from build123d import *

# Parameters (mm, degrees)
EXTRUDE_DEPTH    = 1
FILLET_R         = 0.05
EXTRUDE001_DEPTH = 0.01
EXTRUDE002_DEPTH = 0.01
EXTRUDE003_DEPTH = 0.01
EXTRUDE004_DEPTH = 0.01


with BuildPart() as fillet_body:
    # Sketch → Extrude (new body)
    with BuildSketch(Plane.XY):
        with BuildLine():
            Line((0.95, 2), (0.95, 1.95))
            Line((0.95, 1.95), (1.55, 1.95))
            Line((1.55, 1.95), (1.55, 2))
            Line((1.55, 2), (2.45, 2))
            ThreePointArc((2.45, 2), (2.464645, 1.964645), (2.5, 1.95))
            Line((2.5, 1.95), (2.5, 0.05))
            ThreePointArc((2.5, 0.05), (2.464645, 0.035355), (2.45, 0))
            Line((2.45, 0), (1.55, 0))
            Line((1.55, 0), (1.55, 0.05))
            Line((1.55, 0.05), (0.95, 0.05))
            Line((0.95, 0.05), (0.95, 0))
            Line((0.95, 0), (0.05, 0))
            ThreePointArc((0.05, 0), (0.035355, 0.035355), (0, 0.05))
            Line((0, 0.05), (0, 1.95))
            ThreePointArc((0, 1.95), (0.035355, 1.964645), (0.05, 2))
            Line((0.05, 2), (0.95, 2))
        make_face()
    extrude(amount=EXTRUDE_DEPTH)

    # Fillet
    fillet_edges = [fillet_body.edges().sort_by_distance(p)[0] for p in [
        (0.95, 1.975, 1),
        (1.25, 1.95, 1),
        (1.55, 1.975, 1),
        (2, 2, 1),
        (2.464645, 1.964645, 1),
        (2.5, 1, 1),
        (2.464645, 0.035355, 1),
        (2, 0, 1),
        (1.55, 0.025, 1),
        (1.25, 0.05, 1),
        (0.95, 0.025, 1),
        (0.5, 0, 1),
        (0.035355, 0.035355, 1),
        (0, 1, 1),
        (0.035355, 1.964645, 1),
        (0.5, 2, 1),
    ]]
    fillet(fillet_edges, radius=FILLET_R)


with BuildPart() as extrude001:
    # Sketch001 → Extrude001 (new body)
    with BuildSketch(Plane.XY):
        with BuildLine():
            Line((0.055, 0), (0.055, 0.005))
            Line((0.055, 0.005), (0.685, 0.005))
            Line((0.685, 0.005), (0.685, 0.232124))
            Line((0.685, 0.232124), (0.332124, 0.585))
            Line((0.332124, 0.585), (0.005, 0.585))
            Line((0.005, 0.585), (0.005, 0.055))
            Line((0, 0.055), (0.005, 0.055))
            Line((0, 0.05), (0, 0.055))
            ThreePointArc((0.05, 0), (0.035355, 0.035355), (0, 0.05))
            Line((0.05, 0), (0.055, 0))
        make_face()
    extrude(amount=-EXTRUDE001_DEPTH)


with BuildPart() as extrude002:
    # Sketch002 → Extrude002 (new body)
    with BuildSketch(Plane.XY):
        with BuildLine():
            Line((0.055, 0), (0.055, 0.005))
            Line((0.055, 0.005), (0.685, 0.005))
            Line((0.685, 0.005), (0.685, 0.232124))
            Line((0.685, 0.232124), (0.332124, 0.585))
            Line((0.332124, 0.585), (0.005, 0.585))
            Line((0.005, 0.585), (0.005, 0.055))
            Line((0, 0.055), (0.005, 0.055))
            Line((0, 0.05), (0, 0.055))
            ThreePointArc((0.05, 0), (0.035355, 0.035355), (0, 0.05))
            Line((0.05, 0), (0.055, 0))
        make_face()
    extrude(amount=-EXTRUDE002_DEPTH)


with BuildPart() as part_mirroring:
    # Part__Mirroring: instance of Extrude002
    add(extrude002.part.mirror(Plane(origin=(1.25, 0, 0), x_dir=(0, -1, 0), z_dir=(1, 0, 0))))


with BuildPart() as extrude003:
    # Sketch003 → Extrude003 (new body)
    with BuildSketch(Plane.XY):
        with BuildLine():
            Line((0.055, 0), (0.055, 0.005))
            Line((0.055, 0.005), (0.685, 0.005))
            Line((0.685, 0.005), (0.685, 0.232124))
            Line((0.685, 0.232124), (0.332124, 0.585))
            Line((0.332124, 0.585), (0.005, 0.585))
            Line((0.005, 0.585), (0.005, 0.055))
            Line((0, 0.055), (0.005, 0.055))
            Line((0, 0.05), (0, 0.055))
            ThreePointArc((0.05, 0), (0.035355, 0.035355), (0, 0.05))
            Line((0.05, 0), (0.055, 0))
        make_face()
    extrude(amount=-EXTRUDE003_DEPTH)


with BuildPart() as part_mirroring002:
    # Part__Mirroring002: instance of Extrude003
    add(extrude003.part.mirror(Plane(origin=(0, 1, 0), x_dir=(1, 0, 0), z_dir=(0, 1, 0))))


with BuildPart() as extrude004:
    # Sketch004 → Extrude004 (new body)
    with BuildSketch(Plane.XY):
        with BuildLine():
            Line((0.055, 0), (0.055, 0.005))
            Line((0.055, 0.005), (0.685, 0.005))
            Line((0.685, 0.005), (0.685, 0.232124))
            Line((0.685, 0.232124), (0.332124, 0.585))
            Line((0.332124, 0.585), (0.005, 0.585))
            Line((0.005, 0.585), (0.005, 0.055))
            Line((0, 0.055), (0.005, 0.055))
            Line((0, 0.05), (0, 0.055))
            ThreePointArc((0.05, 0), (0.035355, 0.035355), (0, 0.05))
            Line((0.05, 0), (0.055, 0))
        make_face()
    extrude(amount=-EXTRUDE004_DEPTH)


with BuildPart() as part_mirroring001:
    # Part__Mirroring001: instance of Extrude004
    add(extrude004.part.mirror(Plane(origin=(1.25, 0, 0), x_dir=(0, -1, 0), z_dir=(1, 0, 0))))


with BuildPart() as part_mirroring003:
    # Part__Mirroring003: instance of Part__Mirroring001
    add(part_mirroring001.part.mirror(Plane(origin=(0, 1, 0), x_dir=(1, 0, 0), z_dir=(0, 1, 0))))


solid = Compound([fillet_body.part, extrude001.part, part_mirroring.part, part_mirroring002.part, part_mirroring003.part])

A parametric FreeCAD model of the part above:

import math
import FreeCAD as App
import Part
import Sketcher
Q = App.Units.Quantity


def edges_at(feature, points):
    """Names of the edges that pass closest to the given points."""
    edges = feature.Shape.Edges
    near = lambda p: min(range(len(edges)), key=lambda i: edges[i].distToShape(Part.Vertex(*p))[0])
    return sorted({f"Edge{near(p) + 1}" for p in points})

doc = App.newDocument("Part")
body = doc.addObject("PartDesign::Body", "Body")

sketch1 = doc.addObject("Sketcher::SketchObject", "Sketch")
body.addObject(sketch1)
sketch1.AttachmentSupport = (doc.XY_Plane, [""])
sketch1.MapMode = "FlatFace"
sketch1.addGeometry([
    Part.LineSegment(App.Vector(0.95, 1.95, 0), App.Vector(0.95, 2, 0)),
    Part.LineSegment(App.Vector(0.95, 2, 0), App.Vector(0.05, 2, 0)),
    Part.ArcOfCircle(Part.Circle(App.Vector(0, 2, 0), App.Vector(0, 0, 1), 0.05), math.radians(-90), math.radians(0)),
    Part.LineSegment(App.Vector(0, 1.95, 0), App.Vector(0, 0.05, 0)),
    Part.ArcOfCircle(Part.Circle(App.Vector(0, 0, 0), App.Vector(0, 0, 1), 0.05), math.radians(0), math.radians(90)),
    Part.LineSegment(App.Vector(0.05, 0, 0), App.Vector(0.95, 0, 0)),
    Part.LineSegment(App.Vector(0.95, 0, 0), App.Vector(0.95, 0.05, 0)),
    Part.LineSegment(App.Vector(0.95, 0.05, 0), App.Vector(1.55, 0.05, 0)),
    Part.LineSegment(App.Vector(1.55, 0.05, 0), App.Vector(1.55, 0, 0)),
    Part.LineSegment(App.Vector(1.55, 0, 0), App.Vector(2.45, 0, 0)),
    Part.ArcOfCircle(Part.Circle(App.Vector(2.5, 0, 0), App.Vector(0, 0, 1), 0.05), math.radians(90), math.radians(180)),
    Part.LineSegment(App.Vector(2.5, 0.05, 0), App.Vector(2.5, 1.95, 0)),
    Part.ArcOfCircle(Part.Circle(App.Vector(2.5, 2, 0), App.Vector(0, 0, 1), 0.05), math.radians(-180), math.radians(-90)),
    Part.LineSegment(App.Vector(2.45, 2, 0), App.Vector(1.55, 2, 0)),
    Part.LineSegment(App.Vector(1.55, 2, 0), App.Vector(1.55, 1.95, 0)),
    Part.LineSegment(App.Vector(1.55, 1.95, 0), App.Vector(0.95, 1.95, 0)),
], False)
sketch1.addConstraint([
    Sketcher.Constraint("Coincident", 0, 2, 1, 1),
    Sketcher.Constraint("Coincident", 1, 2, 2, 2),
    Sketcher.Constraint("Coincident", 2, 1, 3, 1),
    Sketcher.Constraint("Coincident", 3, 2, 4, 2),
    Sketcher.Constraint("Coincident", 4, 1, 5, 1),
    Sketcher.Constraint("Coincident", 5, 2, 6, 1),
    Sketcher.Constraint("Coincident", 6, 2, 7, 1),
    Sketcher.Constraint("Coincident", 7, 2, 8, 1),
    Sketcher.Constraint("Coincident", 8, 2, 9, 1),
    Sketcher.Constraint("Coincident", 9, 2, 10, 2),
    Sketcher.Constraint("Coincident", 10, 1, 11, 1),
    Sketcher.Constraint("Coincident", 11, 2, 12, 2),
    Sketcher.Constraint("Coincident", 12, 1, 13, 1),
    Sketcher.Constraint("Coincident", 13, 2, 14, 1),
    Sketcher.Constraint("Coincident", 14, 2, 15, 1),
    Sketcher.Constraint("Coincident", 15, 2, 0, 1),
    Sketcher.Constraint("Vertical", 0),
    Sketcher.Constraint("Horizontal", 1),
    Sketcher.Constraint("Vertical", 3),
    Sketcher.Constraint("Horizontal", 5),
    Sketcher.Constraint("Vertical", 6),
    Sketcher.Constraint("Horizontal", 7),
    Sketcher.Constraint("Vertical", 8),
    Sketcher.Constraint("Horizontal", 9),
    Sketcher.Constraint("Vertical", 11),
    Sketcher.Constraint("Horizontal", 13),
    Sketcher.Constraint("Vertical", 14),
    Sketcher.Constraint("Horizontal", 15),
    Sketcher.Constraint("Coincident", 4, 3, -1, 1),
    Sketcher.Constraint("Equal", 2, 4),
    Sketcher.Constraint("Equal", 4, 10),
    Sketcher.Constraint("Equal", 10, 12),
    Sketcher.Constraint("PointOnObject", 2, 3, -2),
    Sketcher.Constraint("PointOnObject", 10, 3, -1),
    Sketcher.Constraint("PointOnObject", 2, 1, -2),
    Sketcher.Constraint("PointOnObject", 4, 1, -1),
    Sketcher.Constraint("PointOnObject", 8, 2, -1),
    Sketcher.Constraint("Horizontal", 2, 3, 12, 3),
    Sketcher.Constraint("Horizontal", 12, 3, 0, 2),
    Sketcher.Constraint("Horizontal", 3, 2, 6, 2),
    Sketcher.Constraint("Horizontal", 1, 2, 12, 1),
    Sketcher.Constraint("Horizontal", 11, 2, 14, 2),
    Sketcher.Constraint("Vertical", 10, 3, 12, 3),
    Sketcher.Constraint("Vertical", 0, 2, 5, 2),
    Sketcher.Constraint("Vertical", 12, 3, 10, 1),
    Sketcher.Constraint("Vertical", 8, 2, 13, 2),
    Sketcher.Constraint("Equal", 5, 9),
    Sketcher.Constraint("Radius", 2, 0.050001),
    Sketcher.Constraint("DistanceX", 1, 2, 1, 1, 0.9),
    Sketcher.Constraint("DistanceX", 7, 1, 7, 2, 0.6),
    Sketcher.Constraint("DistanceY", 3, 2, 3, 1, 1.9),
])
pad1 = doc.addObject("PartDesign::Pad", "Pad")
body.addObject(pad1)
pad1.Profile = sketch1
pad1.Length = 1
doc.recompute()

fillet = doc.addObject("PartDesign::Fillet", "Fillet")
body.addObject(fillet)
fillet.Base = (pad1, edges_at(pad1, [
    (0.95, 1.975, 1),
    (1.25, 1.95, 1),
    (1.55, 1.975, 1),
    (2, 2, 1),
    (2.465, 1.965, 1),
    (2.5, 1, 1),
    (2.465, 0.035, 1),
    (2, 0, 1),
    (1.55, 0.025, 1),
    (1.25, 0.05, 1),
    (0.95, 0.025, 1),
    (0.5, 0, 1),
    (0.035, 0.035, 1),
    (0, 1, 1),
    (0.035, 1.965, 1),
    (0.5, 2, 1),
]))
fillet.Radius = 0.05
body2 = doc.addObject("PartDesign::Body", "Body001")

sketch2 = doc.addObject("Sketcher::SketchObject", "Sketch001")
body2.addObject(sketch2)
sketch2.AttachmentSupport = (doc.getObject("XY_Plane001"), [""])
sketch2.MapMode = "FlatFace"
sketch2.addGeometry([
    Part.LineSegment(App.Vector(0.055, 0, 0), App.Vector(0.055, 0.005, 0)),
    Part.LineSegment(App.Vector(0.055, 0.005, 0), App.Vector(0.685, 0.005, 0)),
    Part.LineSegment(App.Vector(0.685, 0.005, 0), App.Vector(0.685, 0.232, 0)),
    Part.LineSegment(App.Vector(0.685, 0.232, 0), App.Vector(0.332, 0.585, 0)),
    Part.LineSegment(App.Vector(0.332, 0.585, 0), App.Vector(0.005, 0.585, 0)),
    Part.LineSegment(App.Vector(0.005, 0.585, 0), App.Vector(0.005, 0.055, 0)),
    Part.LineSegment(App.Vector(0.005, 0.055, 0), App.Vector(0, 0.055, 0)),
    Part.LineSegment(App.Vector(0, 0.055, 0), App.Vector(0, 0.05, 0)),
    Part.ArcOfCircle(Part.Circle(App.Vector(0, 0, 0), App.Vector(0, 0, 1), 0.05), math.radians(0), math.radians(90)),
    Part.LineSegment(App.Vector(0.05, 0, 0), App.Vector(0.055, 0, 0)),
], False)
sketch2.addConstraint([
    Sketcher.Constraint("Coincident", 0, 2, 1, 1),
    Sketcher.Constraint("Coincident", 1, 2, 2, 1),
    Sketcher.Constraint("Coincident", 2, 2, 3, 1),
    Sketcher.Constraint("Coincident", 3, 2, 4, 1),
    Sketcher.Constraint("Coincident", 4, 2, 5, 1),
    Sketcher.Constraint("Coincident", 5, 2, 6, 1),
    Sketcher.Constraint("Coincident", 6, 2, 7, 1),
    Sketcher.Constraint("Coincident", 7, 2, 8, 2),
    Sketcher.Constraint("Coincident", 8, 1, 9, 1),
    Sketcher.Constraint("Coincident", 9, 2, 0, 1),
    Sketcher.Constraint("Vertical", 0),
    Sketcher.Constraint("Horizontal", 1),
    Sketcher.Constraint("Vertical", 2),
    Sketcher.Constraint("Horizontal", 4),
    Sketcher.Constraint("Vertical", 5),
    Sketcher.Constraint("Horizontal", 6),
    Sketcher.Constraint("Vertical", 7),
    Sketcher.Constraint("Horizontal", 9),
    Sketcher.Constraint("Coincident", 8, 3, -1, 1),
    Sketcher.Constraint("PointOnObject", 6, 2, -2),
    Sketcher.Constraint("PointOnObject", 8, 1, -1),
    Sketcher.Constraint("Equal", 6, 9),
    Sketcher.Constraint("Equal", 9, 0),
    Sketcher.Constraint("Equal", 0, 7),
    Sketcher.Constraint("Angle", 3, Q("135 deg")),
    Sketcher.Constraint("Radius", 8, 0.050001),
    Sketcher.Constraint("DistanceX", 1, 1, 1, 2, 0.63),
    Sketcher.Constraint("DistanceY", 5, 2, 5, 1, 0.53),
    Sketcher.Constraint("DistanceX", 6, 2, 6, 1, 0.005),
    Sketcher.Constraint("DistanceX", 4, 2, 4, 1, 0.327124),
])
pad2 = doc.addObject("PartDesign::Pad", "Pad001")
body2.addObject(pad2)
pad2.Profile = sketch2
pad2.Length = 0.01
pad2.Reversed = True
body3 = doc.addObject("PartDesign::Body", "Body002")

sketch3 = doc.addObject("Sketcher::SketchObject", "Sketch002")
body3.addObject(sketch3)
sketch3.AttachmentSupport = (doc.getObject("XY_Plane002"), [""])
sketch3.MapMode = "FlatFace"
sketch3.addGeometry([
    Part.LineSegment(App.Vector(0.055, 0, 0), App.Vector(0.055, 0.005, 0)),
    Part.LineSegment(App.Vector(0.055, 0.005, 0), App.Vector(0.685, 0.005, 0)),
    Part.LineSegment(App.Vector(0.685, 0.005, 0), App.Vector(0.685, 0.232, 0)),
    Part.LineSegment(App.Vector(0.685, 0.232, 0), App.Vector(0.332, 0.585, 0)),
    Part.LineSegment(App.Vector(0.332, 0.585, 0), App.Vector(0.005, 0.585, 0)),
    Part.LineSegment(App.Vector(0.005, 0.585, 0), App.Vector(0.005, 0.055, 0)),
    Part.LineSegment(App.Vector(0.005, 0.055, 0), App.Vector(0, 0.055, 0)),
    Part.LineSegment(App.Vector(0, 0.055, 0), App.Vector(0, 0.05, 0)),
    Part.ArcOfCircle(Part.Circle(App.Vector(0, 0, 0), App.Vector(0, 0, 1), 0.05), math.radians(0), math.radians(90)),
    Part.LineSegment(App.Vector(0.05, 0, 0), App.Vector(0.055, 0, 0)),
], False)
sketch3.addConstraint([
    Sketcher.Constraint("Coincident", 0, 2, 1, 1),
    Sketcher.Constraint("Coincident", 1, 2, 2, 1),
    Sketcher.Constraint("Coincident", 2, 2, 3, 1),
    Sketcher.Constraint("Coincident", 3, 2, 4, 1),
    Sketcher.Constraint("Coincident", 4, 2, 5, 1),
    Sketcher.Constraint("Coincident", 5, 2, 6, 1),
    Sketcher.Constraint("Coincident", 6, 2, 7, 1),
    Sketcher.Constraint("Coincident", 7, 2, 8, 2),
    Sketcher.Constraint("Coincident", 8, 1, 9, 1),
    Sketcher.Constraint("Coincident", 9, 2, 0, 1),
    Sketcher.Constraint("Vertical", 0),
    Sketcher.Constraint("Horizontal", 1),
    Sketcher.Constraint("Vertical", 2),
    Sketcher.Constraint("Horizontal", 4),
    Sketcher.Constraint("Vertical", 5),
    Sketcher.Constraint("Horizontal", 6),
    Sketcher.Constraint("Vertical", 7),
    Sketcher.Constraint("Horizontal", 9),
    Sketcher.Constraint("Coincident", 8, 3, -1, 1),
    Sketcher.Constraint("PointOnObject", 6, 2, -2),
    Sketcher.Constraint("PointOnObject", 8, 1, -1),
    Sketcher.Constraint("Equal", 6, 9),
    Sketcher.Constraint("Equal", 9, 0),
    Sketcher.Constraint("Equal", 0, 7),
    Sketcher.Constraint("Angle", 3, Q("135 deg")),
    Sketcher.Constraint("Radius", 8, 0.050001),
    Sketcher.Constraint("DistanceX", 1, 1, 1, 2, 0.63),
    Sketcher.Constraint("DistanceY", 5, 2, 5, 1, 0.53),
    Sketcher.Constraint("DistanceX", 6, 2, 6, 1, 0.005),
    Sketcher.Constraint("DistanceX", 4, 2, 4, 1, 0.327124),
])
pad3 = doc.addObject("PartDesign::Pad", "Pad002")
body3.addObject(pad3)
pad3.Profile = sketch3
pad3.Length = 0.01
pad3.Reversed = True
body4 = doc.addObject("PartDesign::Body", "Body003")
doc.recompute()

mirroring = doc.addObject("Part::Mirroring", "Mirroring")
mirroring.Source = body3
mirroring.Base = App.Vector(1.25, 0, 0)
mirroring.Normal = App.Vector(1, 0, 0)
body4.BaseFeature = mirroring
doc.recompute()
body5 = doc.addObject("PartDesign::Body", "Body004")

sketch4 = doc.addObject("Sketcher::SketchObject", "Sketch003")
body5.addObject(sketch4)
sketch4.AttachmentSupport = (doc.getObject("XY_Plane004"), [""])
sketch4.MapMode = "FlatFace"
sketch4.addGeometry([
    Part.LineSegment(App.Vector(0.055, 0, 0), App.Vector(0.055, 0.005, 0)),
    Part.LineSegment(App.Vector(0.055, 0.005, 0), App.Vector(0.685, 0.005, 0)),
    Part.LineSegment(App.Vector(0.685, 0.005, 0), App.Vector(0.685, 0.232, 0)),
    Part.LineSegment(App.Vector(0.685, 0.232, 0), App.Vector(0.332, 0.585, 0)),
    Part.LineSegment(App.Vector(0.332, 0.585, 0), App.Vector(0.005, 0.585, 0)),
    Part.LineSegment(App.Vector(0.005, 0.585, 0), App.Vector(0.005, 0.055, 0)),
    Part.LineSegment(App.Vector(0.005, 0.055, 0), App.Vector(0, 0.055, 0)),
    Part.LineSegment(App.Vector(0, 0.055, 0), App.Vector(0, 0.05, 0)),
    Part.ArcOfCircle(Part.Circle(App.Vector(0, 0, 0), App.Vector(0, 0, 1), 0.05), math.radians(0), math.radians(90)),
    Part.LineSegment(App.Vector(0.05, 0, 0), App.Vector(0.055, 0, 0)),
], False)
sketch4.addConstraint([
    Sketcher.Constraint("Coincident", 0, 2, 1, 1),
    Sketcher.Constraint("Coincident", 1, 2, 2, 1),
    Sketcher.Constraint("Coincident", 2, 2, 3, 1),
    Sketcher.Constraint("Coincident", 3, 2, 4, 1),
    Sketcher.Constraint("Coincident", 4, 2, 5, 1),
    Sketcher.Constraint("Coincident", 5, 2, 6, 1),
    Sketcher.Constraint("Coincident", 6, 2, 7, 1),
    Sketcher.Constraint("Coincident", 7, 2, 8, 2),
    Sketcher.Constraint("Coincident", 8, 1, 9, 1),
    Sketcher.Constraint("Coincident", 9, 2, 0, 1),
    Sketcher.Constraint("Vertical", 0),
    Sketcher.Constraint("Horizontal", 1),
    Sketcher.Constraint("Vertical", 2),
    Sketcher.Constraint("Horizontal", 4),
    Sketcher.Constraint("Vertical", 5),
    Sketcher.Constraint("Horizontal", 6),
    Sketcher.Constraint("Vertical", 7),
    Sketcher.Constraint("Horizontal", 9),
    Sketcher.Constraint("Coincident", 8, 3, -1, 1),
    Sketcher.Constraint("PointOnObject", 6, 2, -2),
    Sketcher.Constraint("PointOnObject", 8, 1, -1),
    Sketcher.Constraint("Equal", 6, 9),
    Sketcher.Constraint("Equal", 9, 0),
    Sketcher.Constraint("Equal", 0, 7),
    Sketcher.Constraint("Angle", 3, Q("135 deg")),
    Sketcher.Constraint("Radius", 8, 0.050001),
    Sketcher.Constraint("DistanceX", 1, 1, 1, 2, 0.63),
    Sketcher.Constraint("DistanceY", 5, 2, 5, 1, 0.53),
    Sketcher.Constraint("DistanceX", 6, 2, 6, 1, 0.005),
    Sketcher.Constraint("DistanceX", 4, 2, 4, 1, 0.327124),
])
pad4 = doc.addObject("PartDesign::Pad", "Pad003")
body5.addObject(pad4)
pad4.Profile = sketch4
pad4.Length = 0.01
pad4.Reversed = True
body6 = doc.addObject("PartDesign::Body", "Body005")
doc.recompute()

mirroring2 = doc.addObject("Part::Mirroring", "Mirroring001")
mirroring2.Source = body5
mirroring2.Base = App.Vector(0, 1, 0)
mirroring2.Normal = App.Vector(0, 1, 0)
body6.BaseFeature = mirroring2
doc.recompute()
body7 = doc.addObject("PartDesign::Body", "Body006")

sketch5 = doc.addObject("Sketcher::SketchObject", "Sketch004")
body7.addObject(sketch5)
sketch5.AttachmentSupport = (doc.getObject("XY_Plane006"), [""])
sketch5.MapMode = "FlatFace"
sketch5.addGeometry([
    Part.LineSegment(App.Vector(0.055, 0, 0), App.Vector(0.055, 0.005, 0)),
    Part.LineSegment(App.Vector(0.055, 0.005, 0), App.Vector(0.685, 0.005, 0)),
    Part.LineSegment(App.Vector(0.685, 0.005, 0), App.Vector(0.685, 0.232, 0)),
    Part.LineSegment(App.Vector(0.685, 0.232, 0), App.Vector(0.332, 0.585, 0)),
    Part.LineSegment(App.Vector(0.332, 0.585, 0), App.Vector(0.005, 0.585, 0)),
    Part.LineSegment(App.Vector(0.005, 0.585, 0), App.Vector(0.005, 0.055, 0)),
    Part.LineSegment(App.Vector(0.005, 0.055, 0), App.Vector(0, 0.055, 0)),
    Part.LineSegment(App.Vector(0, 0.055, 0), App.Vector(0, 0.05, 0)),
    Part.ArcOfCircle(Part.Circle(App.Vector(0, 0, 0), App.Vector(0, 0, 1), 0.05), math.radians(0), math.radians(90)),
    Part.LineSegment(App.Vector(0.05, 0, 0), App.Vector(0.055, 0, 0)),
], False)
sketch5.addConstraint([
    Sketcher.Constraint("Coincident", 0, 2, 1, 1),
    Sketcher.Constraint("Coincident", 1, 2, 2, 1),
    Sketcher.Constraint("Coincident", 2, 2, 3, 1),
    Sketcher.Constraint("Coincident", 3, 2, 4, 1),
    Sketcher.Constraint("Coincident", 4, 2, 5, 1),
    Sketcher.Constraint("Coincident", 5, 2, 6, 1),
    Sketcher.Constraint("Coincident", 6, 2, 7, 1),
    Sketcher.Constraint("Coincident", 7, 2, 8, 2),
    Sketcher.Constraint("Coincident", 8, 1, 9, 1),
    Sketcher.Constraint("Coincident", 9, 2, 0, 1),
    Sketcher.Constraint("Vertical", 0),
    Sketcher.Constraint("Horizontal", 1),
    Sketcher.Constraint("Vertical", 2),
    Sketcher.Constraint("Horizontal", 4),
    Sketcher.Constraint("Vertical", 5),
    Sketcher.Constraint("Horizontal", 6),
    Sketcher.Constraint("Vertical", 7),
    Sketcher.Constraint("Horizontal", 9),
    Sketcher.Constraint("Coincident", 8, 3, -1, 1),
    Sketcher.Constraint("PointOnObject", 6, 2, -2),
    Sketcher.Constraint("PointOnObject", 8, 1, -1),
    Sketcher.Constraint("Equal", 6, 9),
    Sketcher.Constraint("Equal", 9, 0),
    Sketcher.Constraint("Equal", 0, 7),
    Sketcher.Constraint("Angle", 3, Q("135 deg")),
    Sketcher.Constraint("Radius", 8, 0.050001),
    Sketcher.Constraint("DistanceX", 1, 1, 1, 2, 0.63),
    Sketcher.Constraint("DistanceY", 5, 2, 5, 1, 0.53),
    Sketcher.Constraint("DistanceX", 6, 2, 6, 1, 0.005),
    Sketcher.Constraint("DistanceX", 4, 2, 4, 1, 0.327124),
])
pad5 = doc.addObject("PartDesign::Pad", "Pad004")
body7.addObject(pad5)
pad5.Profile = sketch5
pad5.Length = 0.01
pad5.Reversed = True
body8 = doc.addObject("PartDesign::Body", "Body007")
doc.recompute()

mirroring3 = doc.addObject("Part::Mirroring", "Mirroring002")
mirroring3.Source = body7
mirroring3.Base = App.Vector(1.25, 0, 0)
mirroring3.Normal = App.Vector(1, 0, 0)
body8.BaseFeature = mirroring3
doc.recompute()
body9 = doc.addObject("PartDesign::Body", "Body008")
doc.recompute()

mirroring4 = doc.addObject("Part::Mirroring", "Mirroring003")
mirroring4.Source = body8
mirroring4.Base = App.Vector(0, 1, 0)
mirroring4.Normal = App.Vector(0, 1, 0)
body9.BaseFeature = mirroring4
doc.recompute()
body2.Visibility = False
body3.Visibility = False
body4.Visibility = False
body5.Visibility = False
mirroring.Visibility = False
mirroring2.Visibility = False
mirroring3.Visibility = False
mirroring4.Visibility = False

doc.recompute()
